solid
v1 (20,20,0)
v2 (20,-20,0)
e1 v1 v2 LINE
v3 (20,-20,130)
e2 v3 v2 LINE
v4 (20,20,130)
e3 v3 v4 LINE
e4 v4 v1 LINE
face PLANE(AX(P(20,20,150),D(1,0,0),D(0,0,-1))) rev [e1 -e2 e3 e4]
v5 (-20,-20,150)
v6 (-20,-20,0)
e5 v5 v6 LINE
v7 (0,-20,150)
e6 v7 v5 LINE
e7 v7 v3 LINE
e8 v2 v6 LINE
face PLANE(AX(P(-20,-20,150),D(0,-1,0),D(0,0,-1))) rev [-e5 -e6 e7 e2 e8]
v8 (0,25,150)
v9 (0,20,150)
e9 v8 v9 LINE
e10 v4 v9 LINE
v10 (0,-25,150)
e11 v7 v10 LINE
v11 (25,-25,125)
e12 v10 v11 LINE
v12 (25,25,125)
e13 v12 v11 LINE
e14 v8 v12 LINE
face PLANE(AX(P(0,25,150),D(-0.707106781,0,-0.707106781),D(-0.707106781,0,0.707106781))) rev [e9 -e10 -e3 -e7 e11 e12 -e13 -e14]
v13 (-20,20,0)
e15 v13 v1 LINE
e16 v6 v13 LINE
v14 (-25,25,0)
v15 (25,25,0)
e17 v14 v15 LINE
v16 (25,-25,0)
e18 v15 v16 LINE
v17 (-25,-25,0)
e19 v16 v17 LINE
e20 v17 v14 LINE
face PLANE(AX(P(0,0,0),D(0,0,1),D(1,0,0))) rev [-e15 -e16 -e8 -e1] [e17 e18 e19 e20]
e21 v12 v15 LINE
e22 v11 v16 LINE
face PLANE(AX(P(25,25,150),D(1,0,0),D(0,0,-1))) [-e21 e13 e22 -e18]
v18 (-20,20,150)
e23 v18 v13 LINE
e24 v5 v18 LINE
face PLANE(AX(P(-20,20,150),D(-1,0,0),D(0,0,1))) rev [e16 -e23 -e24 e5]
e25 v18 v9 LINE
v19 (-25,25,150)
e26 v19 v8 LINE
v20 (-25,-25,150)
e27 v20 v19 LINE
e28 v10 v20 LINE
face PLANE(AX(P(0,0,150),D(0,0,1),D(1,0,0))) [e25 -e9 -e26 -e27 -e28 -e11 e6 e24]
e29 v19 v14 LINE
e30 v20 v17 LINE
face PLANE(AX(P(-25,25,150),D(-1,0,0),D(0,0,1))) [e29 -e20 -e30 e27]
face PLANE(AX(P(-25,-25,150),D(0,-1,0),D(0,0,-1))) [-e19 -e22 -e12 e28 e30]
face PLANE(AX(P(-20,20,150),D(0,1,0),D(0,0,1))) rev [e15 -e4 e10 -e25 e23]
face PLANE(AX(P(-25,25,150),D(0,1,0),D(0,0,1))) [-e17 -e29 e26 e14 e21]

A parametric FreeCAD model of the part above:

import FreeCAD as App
import Part
import Sketcher

V = App.Vector


def add_polygon(sketch, points):
    """Adds a closed chain of lines whose ends are joined by coincident constraints."""
    first, n = sketch.GeometryCount, len(points)
    for a, b in zip(points, points[1:] + points[:1]):
        sketch.addGeometry(Part.LineSegment(App.Vector(*a, 0), App.Vector(*b, 0)), False)
    for i in range(n):
        sketch.addConstraint(Sketcher.Constraint("Coincident", first + i, 2, first + (i + 1) % n, 1))

doc = App.newDocument("Part")
body = doc.addObject("PartDesign::Body", "Body")

# Sketch on XY plane
sketch1 = body.newObject("Sketcher::SketchObject", "Sketch")
sketch1.AttachmentSupport = (doc.getObject("XY_Plane"), [""])
sketch1.MapMode = "FlatFace"
add_polygon(sketch1, [(-25, -25), (-25, 25), (25, 25), (25, -25)])  # lines 0-3
add_polygon(sketch1, [(20, 20), (-20, 20), (-20, -20), (20, -20)])  # lines 4-7
sketch1.addConstraint([
    Sketcher.Constraint("Vertical", 0),
    Sketcher.Constraint("Horizontal", 1),
    Sketcher.Constraint("Vertical", 2),
    Sketcher.Constraint("Horizontal", 3),
    Sketcher.Constraint("Horizontal", 4),
    Sketcher.Constraint("Vertical", 5),
    Sketcher.Constraint("Horizontal", 6),
    Sketcher.Constraint("Vertical", 7),
    Sketcher.Constraint("Symmetric", 0, 2, 2, 2, -1, 1),
    Sketcher.Constraint("Symmetric", 4, 2, 6, 2, -1, 1),
    Sketcher.Constraint("Equal", 3, 0),
    Sketcher.Constraint("Equal", 6, 5),
    Sketcher.Constraint("DistanceX", 1, 1, 1, 2, 50.0),
    Sketcher.Constraint("DistanceX", 4, 2, 4, 1, 40.0),
])
pad1 = body.newObject("PartDesign::Pad", "Pad")
pad1.Profile = sketch1
pad1.Length = 150

# Sketch on XZ plane
sketch2 = body.newObject("Sketcher::SketchObject", "Sketch001")
sketch2.AttachmentSupport = (doc.getObject("XZ_Plane"), [""])
sketch2.MapMode = "FlatFace"
sketch2.AttachmentOffset = App.Placement(V(0, 0, 25), App.Rotation())
add_polygon(sketch2, [(0, 150), (25, 125), (25, 150)])  # lines 0-2
sketch2.addConstraint([
    Sketcher.Constraint("Vertical", 1),
    Sketcher.Constraint("Horizontal", 2),
    Sketcher.Constraint("PointOnObject", 2, 2, -2),
    Sketcher.Constraint("Equal", 2, 1),
    Sketcher.Constraint("DistanceX", 2, 2, 2, 1, 25.0),
    Sketcher.Constraint("DistanceY", -1, 1, 0, 2, 125.0),
])
pocket1 = body.newObject("PartDesign::Pocket", "Pocket")
pocket1.Profile = sketch2
pocket1.Type = "ThroughAll"

doc.recompute()
